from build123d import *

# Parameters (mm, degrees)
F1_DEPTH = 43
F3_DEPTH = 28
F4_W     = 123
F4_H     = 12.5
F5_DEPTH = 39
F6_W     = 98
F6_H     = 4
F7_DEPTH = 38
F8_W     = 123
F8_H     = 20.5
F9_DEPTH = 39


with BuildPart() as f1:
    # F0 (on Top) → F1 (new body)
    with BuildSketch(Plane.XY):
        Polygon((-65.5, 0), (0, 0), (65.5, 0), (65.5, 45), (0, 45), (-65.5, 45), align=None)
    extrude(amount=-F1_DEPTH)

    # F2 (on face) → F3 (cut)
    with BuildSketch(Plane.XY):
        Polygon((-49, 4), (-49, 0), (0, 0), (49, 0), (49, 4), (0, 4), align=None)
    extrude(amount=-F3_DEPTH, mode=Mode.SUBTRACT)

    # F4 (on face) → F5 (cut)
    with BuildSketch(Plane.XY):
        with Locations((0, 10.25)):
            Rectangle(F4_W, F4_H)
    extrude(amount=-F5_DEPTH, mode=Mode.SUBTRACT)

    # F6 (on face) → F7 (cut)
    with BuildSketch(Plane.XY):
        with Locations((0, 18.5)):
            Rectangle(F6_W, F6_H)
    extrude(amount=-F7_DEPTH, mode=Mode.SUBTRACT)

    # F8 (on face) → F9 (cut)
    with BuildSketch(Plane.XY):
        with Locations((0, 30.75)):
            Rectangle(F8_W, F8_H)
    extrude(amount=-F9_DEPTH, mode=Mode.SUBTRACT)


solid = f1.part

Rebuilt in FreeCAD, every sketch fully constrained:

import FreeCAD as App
import Part
import Sketcher
from FreeCAD import Vector

doc = App.newDocument("Part")
params = doc.addObject("Spreadsheet::Sheet", "Params")
for row, (alias, value) in enumerate([
    ("sketch1_width", "131 mm"),
    ("sketch1_height", "45 mm"),
    ("pad1_length", "43 mm"),
    ("sketch2_width", "98 mm"),
    ("sketch2_height", "4 mm"),
    ("pocket1_length", "28 mm"),
    ("sketch3_width", "123 mm"),
    ("sketch3_height", "12.5 mm"),
    ("pocket2_length", "39 mm"),
    ("sketch4_width", "98 mm"),
    ("sketch4_height", "4 mm"),
    ("pocket3_length", "38 mm"),
    ("sketch5_width", "123 mm"),
    ("sketch5_height", "20.5 mm"),
    ("pocket4_length", "39 mm"),
], start=1):
    params.set(f"A{row}", alias)
    params.set(f"B{row}", "=" + value)
    params.setAlias(f"B{row}", alias)

body = doc.addObject("PartDesign::Body", "Body")

# Sketch on XY plane
sketch1 = body.newObject("Sketcher::SketchObject", "Sketch")
sketch1.AttachmentSupport = (doc.getObject("XY_Plane"), [""])
sketch1.MapMode = "FlatFace"
sketch1.addGeometry(Part.LineSegment(Vector(-65.5, 0, 0), Vector(65.5, 0, 0)), False)
sketch1.addGeometry(Part.LineSegment(Vector(65.5, 0, 0), Vector(65.5, 45, 0)), False)
sketch1.addGeometry(Part.LineSegment(Vector(65.5, 45, 0), Vector(-65.5, 45, 0)), False)
sketch1.addGeometry(Part.LineSegment(Vector(-65.5, 45, 0), Vector(-65.5, 0, 0)), False)
sketch1.addConstraint(Sketcher.Constraint("Coincident", 0, 2, 1, 1))
sketch1.addConstraint(Sketcher.Constraint("Coincident", 1, 2, 2, 1))
sketch1.addConstraint(Sketcher.Constraint("Coincident", 2, 2, 3, 1))
sketch1.addConstraint(Sketcher.Constraint("Coincident", 3, 2, 0, 1))
sketch1.addConstraint(Sketcher.Constraint("Horizontal", 0))
sketch1.addConstraint(Sketcher.Constraint("Vertical", 1))
sketch1.addConstraint(Sketcher.Constraint("Horizontal", 2))
sketch1.addConstraint(Sketcher.Constraint("Vertical", 3))
sketch1.addConstraint(Sketcher.Constraint("Symmetric", 0, 2, 3, 2, -1, 1))
sketch1.addConstraint(Sketcher.Constraint("DistanceX", 0, 1, 0, 2, 131.0))
sketch1.addConstraint(Sketcher.Constraint("DistanceY", 1, 1, 1, 2, 45.0))
sketch1.setExpression("Constraints[9]", "Params.sketch1_width")
sketch1.setExpression("Constraints[10]", "Params.sketch1_height")
pad1 = body.newObject("PartDesign::Pad", "Pad")
pad1.Profile = sketch1
pad1.setExpression("Length", "Params.pad1_length")
pad1.Reversed = True

# Sketch on XY plane
sketch2 = body.newObject("Sketcher::SketchObject", "Sketch001")
sketch2.AttachmentSupport = (doc.getObject("XY_Plane"), [""])
sketch2.MapMode = "FlatFace"
sketch2.addGeometry(Part.LineSegment(Vector(-49, 4, 0), Vector(-49, 0, 0)), False)
sketch2.addGeometry(Part.LineSegment(Vector(-49, 0, 0), Vector(49, 0, 0)), False)
sketch2.addGeometry(Part.LineSegment(Vector(49, 0, 0), Vector(49, 4, 0)), False)
sketch2.addGeometry(Part.LineSegment(Vector(49, 4, 0), Vector(-49, 4, 0)), False)
sketch2.addConstraint(Sketcher.Constraint("Coincident", 0, 2, 1, 1))
sketch2.addConstraint(Sketcher.Constraint("Coincident", 1, 2, 2, 1))
sketch2.addConstraint(Sketcher.Constraint("Coincident", 2, 2, 3, 1))
sketch2.addConstraint(Sketcher.Constraint("Coincident", 3, 2, 0, 1))
sketch2.addConstraint(Sketcher.Constraint("Vertical", 0))
sketch2.addConstraint(Sketcher.Constraint("Horizontal", 1))
sketch2.addConstraint(Sketcher.Constraint("Vertical", 2))
sketch2.addConstraint(Sketcher.Constraint("Horizontal", 3))
sketch2.addConstraint(Sketcher.Constraint("Symmetric", 0, 2, 1, 2, -1, 1))
sketch2.addConstraint(Sketcher.Constraint("DistanceX", 1, 1, 1, 2, 98.0))
sketch2.addConstraint(Sketcher.Constraint("DistanceY", 0, 2, 0, 1, 4.0))
sketch2.setExpression("Constraints[9]", "Params.sketch2_width")
sketch2.setExpression("Constraints[10]", "Params.sketch2_height")
pocket1 = body.newObject("PartDesign::Pocket", "Pocket")
pocket1.Profile = sketch2
pocket1.setExpression("Length", "Params.pocket1_length")

# Sketch on XY plane
sketch3 = body.newObject("Sketcher::SketchObject", "Sketch002")
sketch3.AttachmentSupport = (doc.getObject("XY_Plane"), [""])
sketch3.MapMode = "FlatFace"
sketch3.addGeometry(Part.LineSegment(Vector(-61.5, 16.5, 0), Vector(-61.5, 4, 0)), False)
sketch3.addGeometry(Part.LineSegment(Vector(-61.5, 4, 0), Vector(61.5, 4, 0)), False)
sketch3.addGeometry(Part.LineSegment(Vector(61.5, 4, 0), Vector(61.5, 16.5, 0)), False)
sketch3.addGeometry(Part.LineSegment(Vector(61.5, 16.5, 0), Vector(-61.5, 16.5, 0)), False)
sketch3.addConstraint(Sketcher.Constraint("Coincident", 0, 2, 1, 1))
sketch3.addConstraint(Sketcher.Constraint("Coincident", 1, 2, 2, 1))
sketch3.addConstraint(Sketcher.Constraint("Coincident", 2, 2, 3, 1))
sketch3.addConstraint(Sketcher.Constraint("Coincident", 3, 2, 0, 1))
sketch3.addConstraint(Sketcher.Constraint("Vertical", 0))
sketch3.addConstraint(Sketcher.Constraint("Horizontal", 1))
sketch3.addConstraint(Sketcher.Constraint("Vertical", 2))
sketch3.addConstraint(Sketcher.Constraint("Horizontal", 3))
sketch3.addConstraint(Sketcher.Constraint("DistanceX", 1, 1, 1, 2, 123.0))
sketch3.addConstraint(Sketcher.Constraint("DistanceY", 0, 2, 0, 1, 12.5))
sketch3.addConstraint(Sketcher.Constraint("DistanceY", -1, 1, 0, 2, 4.0))
sketch3.addConstraint(Sketcher.Constraint("DistanceX", 0, 2, -1, 1, 61.5))
sketch3.setExpression("Constraints[8]", "Params.sketch3_width")
sketch3.setExpression("Constraints[9]", "Params.sketch3_height")
pocket2 = body.newObject("PartDesign::Pocket", "Pocket001")
pocket2.Profile = sketch3
pocket2.setExpression("Length", "Params.pocket2_length")

# Sketch on XY plane
sketch4 = body.newObject("Sketcher::SketchObject", "Sketch003")
sketch4.AttachmentSupport = (doc.getObject("XY_Plane"), [""])
sketch4.MapMode = "FlatFace"
sketch4.addGeometry(Part.LineSegment(Vector(-49, 20.5, 0), Vector(-49, 16.5, 0)), False)
sketch4.addGeometry(Part.LineSegment(Vector(-49, 16.5, 0), Vector(49, 16.5, 0)), False)
sketch4.addGeometry(Part.LineSegment(Vector(49, 16.5, 0), Vector(49, 20.5, 0)), False)
sketch4.addGeometry(Part.LineSegment(Vector(49, 20.5, 0), Vector(-49, 20.5, 0)), False)
sketch4.addConstraint(Sketcher.Constraint("Coincident", 0, 2, 1, 1))
sketch4.addConstraint(Sketcher.Constraint("Coincident", 1, 2, 2, 1))
sketch4.addConstraint(Sketcher.Constraint("Coincident", 2, 2, 3, 1))
sketch4.addConstraint(Sketcher.Constraint("Coincident", 3, 2, 0, 1))
sketch4.addConstraint(Sketcher.Constraint("Vertical", 0))
sketch4.addConstraint(Sketcher.Constraint("Horizontal", 1))
sketch4.addConstraint(Sketcher.Constraint("Vertical", 2))
sketch4.addConstraint(Sketcher.Constraint("Horizontal", 3))
sketch4.addConstraint(Sketcher.Constraint("DistanceX", 1, 1, 1, 2, 98.0))
sketch4.addConstraint(Sketcher.Constraint("DistanceY", 0, 2, 0, 1, 4.0))
sketch4.addConstraint(Sketcher.Constraint("DistanceX", 0, 2, -1, 1, 49.0))
sketch4.addConstraint(Sketcher.Constraint("DistanceY", -1, 1, 0, 2, 16.5))
sketch4.setExpression("Constraints[8]", "Params.sketch4_width")
sketch4.setExpression("Constraints[9]", "Params.sketch4_height")
pocket3 = body.newObject("PartDesign::Pocket", "Pocket002")
pocket3.Profile = sketch4
pocket3.setExpression("Length", "Params.pocket3_length")

# Sketch on XY plane
sketch5 = body.newObject("Sketcher::SketchObject", "Sketch004")
sketch5.AttachmentSupport = (doc.getObject("XY_Plane"), [""])
sketch5.MapMode = "FlatFace"
sketch5.addGeometry(Part.LineSegment(Vector(-61.5, 41, 0), Vector(-61.5, 20.5, 0)), False)
sketch5.addGeometry(Part.LineSegment(Vector(-61.5, 20.5, 0), Vector(61.5, 20.5, 0)), False)
sketch5.addGeometry(Part.LineSegment(Vector(61.5, 20.5, 0), Vector(61.5, 41, 0)), False)
sketch5.addGeometry(Part.LineSegment(Vector(61.5, 41, 0), Vector(-61.5, 41, 0)), False)
sketch5.addConstraint(Sketcher.Constraint("Coincident", 0, 2, 1, 1))
sketch5.addConstraint(Sketcher.Constraint("Coincident", 1, 2, 2, 1))
sketch5.addConstraint(Sketcher.Constraint("Coincident", 2, 2, 3, 1))
sketch5.addConstraint(Sketcher.Constraint("Coincident", 3, 2, 0, 1))
sketch5.addConstraint(Sketcher.Constraint("Vertical", 0))
sketch5.addConstraint(Sketcher.Constraint("Horizontal", 1))
sketch5.addConstraint(Sketcher.Constraint("Vertical", 2))
sketch5.addConstraint(Sketcher.Constraint("Horizontal", 3))
sketch5.addConstraint(Sketcher.Constraint("DistanceX", 1, 1, 1, 2, 123.0))
sketch5.addConstraint(Sketcher.Constraint("DistanceY", 0, 2, 0, 1, 20.5))
sketch5.addConstraint(Sketcher.Constraint("DistanceY", -1, 1, 2, 2, 41.0))
sketch5.addConstraint(Sketcher.Constraint("DistanceX", 0, 2, -1, 1, 61.5))
sketch5.setExpression("Constraints[8]", "Params.sketch5_width")
sketch5.setExpression("Constraints[9]", "Params.sketch5_height")
pocket4 = body.newObject("PartDesign::Pocket", "Pocket003")
pocket4.Profile = sketch5
pocket4.setExpression("Length", "Params.pocket4_length")

doc.recompute()
